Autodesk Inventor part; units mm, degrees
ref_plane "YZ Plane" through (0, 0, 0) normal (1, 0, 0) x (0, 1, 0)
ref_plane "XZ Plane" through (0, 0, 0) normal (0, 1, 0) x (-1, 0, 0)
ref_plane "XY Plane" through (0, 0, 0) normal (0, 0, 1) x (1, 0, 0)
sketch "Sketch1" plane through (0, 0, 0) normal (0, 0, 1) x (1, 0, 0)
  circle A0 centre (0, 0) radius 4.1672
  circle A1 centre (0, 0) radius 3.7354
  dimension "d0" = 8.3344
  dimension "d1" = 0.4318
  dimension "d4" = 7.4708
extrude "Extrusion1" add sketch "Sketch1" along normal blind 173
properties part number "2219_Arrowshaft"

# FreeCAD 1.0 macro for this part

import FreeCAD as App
import Part
import Sketcher
from FreeCAD import Vector

doc = App.newDocument("Part")
body = doc.addObject("PartDesign::Body", "Body")

# Sketch on XY plane
sketch1 = doc.addObject("Sketcher::SketchObject", "Sketch")
body.addObject(sketch1)
sketch1.AttachmentSupport = (doc.XY_Plane, [""])
sketch1.MapMode = "FlatFace"
sketch1.addGeometry([
    Part.Circle(Vector(0, 0, 0), Vector(0, 0, 1), 4.1672),
    Part.Circle(Vector(0, 0, 0), Vector(0, 0, 1), 3.7354),
], False)
sketch1.addConstraint([
    Sketcher.Constraint("Coincident", 0, 3, -1, 1),
    Sketcher.Constraint("Coincident", 1, 3, -1, 1),
    Sketcher.Constraint("Diameter", 0, 8.3344),
    Sketcher.Constraint("Diameter", 1, 7.4708),
])
pad1 = doc.addObject("PartDesign::Pad", "Pad")
body.addObject(pad1)
pad1.Profile = sketch1
pad1.Length = 173

doc.recompute()
